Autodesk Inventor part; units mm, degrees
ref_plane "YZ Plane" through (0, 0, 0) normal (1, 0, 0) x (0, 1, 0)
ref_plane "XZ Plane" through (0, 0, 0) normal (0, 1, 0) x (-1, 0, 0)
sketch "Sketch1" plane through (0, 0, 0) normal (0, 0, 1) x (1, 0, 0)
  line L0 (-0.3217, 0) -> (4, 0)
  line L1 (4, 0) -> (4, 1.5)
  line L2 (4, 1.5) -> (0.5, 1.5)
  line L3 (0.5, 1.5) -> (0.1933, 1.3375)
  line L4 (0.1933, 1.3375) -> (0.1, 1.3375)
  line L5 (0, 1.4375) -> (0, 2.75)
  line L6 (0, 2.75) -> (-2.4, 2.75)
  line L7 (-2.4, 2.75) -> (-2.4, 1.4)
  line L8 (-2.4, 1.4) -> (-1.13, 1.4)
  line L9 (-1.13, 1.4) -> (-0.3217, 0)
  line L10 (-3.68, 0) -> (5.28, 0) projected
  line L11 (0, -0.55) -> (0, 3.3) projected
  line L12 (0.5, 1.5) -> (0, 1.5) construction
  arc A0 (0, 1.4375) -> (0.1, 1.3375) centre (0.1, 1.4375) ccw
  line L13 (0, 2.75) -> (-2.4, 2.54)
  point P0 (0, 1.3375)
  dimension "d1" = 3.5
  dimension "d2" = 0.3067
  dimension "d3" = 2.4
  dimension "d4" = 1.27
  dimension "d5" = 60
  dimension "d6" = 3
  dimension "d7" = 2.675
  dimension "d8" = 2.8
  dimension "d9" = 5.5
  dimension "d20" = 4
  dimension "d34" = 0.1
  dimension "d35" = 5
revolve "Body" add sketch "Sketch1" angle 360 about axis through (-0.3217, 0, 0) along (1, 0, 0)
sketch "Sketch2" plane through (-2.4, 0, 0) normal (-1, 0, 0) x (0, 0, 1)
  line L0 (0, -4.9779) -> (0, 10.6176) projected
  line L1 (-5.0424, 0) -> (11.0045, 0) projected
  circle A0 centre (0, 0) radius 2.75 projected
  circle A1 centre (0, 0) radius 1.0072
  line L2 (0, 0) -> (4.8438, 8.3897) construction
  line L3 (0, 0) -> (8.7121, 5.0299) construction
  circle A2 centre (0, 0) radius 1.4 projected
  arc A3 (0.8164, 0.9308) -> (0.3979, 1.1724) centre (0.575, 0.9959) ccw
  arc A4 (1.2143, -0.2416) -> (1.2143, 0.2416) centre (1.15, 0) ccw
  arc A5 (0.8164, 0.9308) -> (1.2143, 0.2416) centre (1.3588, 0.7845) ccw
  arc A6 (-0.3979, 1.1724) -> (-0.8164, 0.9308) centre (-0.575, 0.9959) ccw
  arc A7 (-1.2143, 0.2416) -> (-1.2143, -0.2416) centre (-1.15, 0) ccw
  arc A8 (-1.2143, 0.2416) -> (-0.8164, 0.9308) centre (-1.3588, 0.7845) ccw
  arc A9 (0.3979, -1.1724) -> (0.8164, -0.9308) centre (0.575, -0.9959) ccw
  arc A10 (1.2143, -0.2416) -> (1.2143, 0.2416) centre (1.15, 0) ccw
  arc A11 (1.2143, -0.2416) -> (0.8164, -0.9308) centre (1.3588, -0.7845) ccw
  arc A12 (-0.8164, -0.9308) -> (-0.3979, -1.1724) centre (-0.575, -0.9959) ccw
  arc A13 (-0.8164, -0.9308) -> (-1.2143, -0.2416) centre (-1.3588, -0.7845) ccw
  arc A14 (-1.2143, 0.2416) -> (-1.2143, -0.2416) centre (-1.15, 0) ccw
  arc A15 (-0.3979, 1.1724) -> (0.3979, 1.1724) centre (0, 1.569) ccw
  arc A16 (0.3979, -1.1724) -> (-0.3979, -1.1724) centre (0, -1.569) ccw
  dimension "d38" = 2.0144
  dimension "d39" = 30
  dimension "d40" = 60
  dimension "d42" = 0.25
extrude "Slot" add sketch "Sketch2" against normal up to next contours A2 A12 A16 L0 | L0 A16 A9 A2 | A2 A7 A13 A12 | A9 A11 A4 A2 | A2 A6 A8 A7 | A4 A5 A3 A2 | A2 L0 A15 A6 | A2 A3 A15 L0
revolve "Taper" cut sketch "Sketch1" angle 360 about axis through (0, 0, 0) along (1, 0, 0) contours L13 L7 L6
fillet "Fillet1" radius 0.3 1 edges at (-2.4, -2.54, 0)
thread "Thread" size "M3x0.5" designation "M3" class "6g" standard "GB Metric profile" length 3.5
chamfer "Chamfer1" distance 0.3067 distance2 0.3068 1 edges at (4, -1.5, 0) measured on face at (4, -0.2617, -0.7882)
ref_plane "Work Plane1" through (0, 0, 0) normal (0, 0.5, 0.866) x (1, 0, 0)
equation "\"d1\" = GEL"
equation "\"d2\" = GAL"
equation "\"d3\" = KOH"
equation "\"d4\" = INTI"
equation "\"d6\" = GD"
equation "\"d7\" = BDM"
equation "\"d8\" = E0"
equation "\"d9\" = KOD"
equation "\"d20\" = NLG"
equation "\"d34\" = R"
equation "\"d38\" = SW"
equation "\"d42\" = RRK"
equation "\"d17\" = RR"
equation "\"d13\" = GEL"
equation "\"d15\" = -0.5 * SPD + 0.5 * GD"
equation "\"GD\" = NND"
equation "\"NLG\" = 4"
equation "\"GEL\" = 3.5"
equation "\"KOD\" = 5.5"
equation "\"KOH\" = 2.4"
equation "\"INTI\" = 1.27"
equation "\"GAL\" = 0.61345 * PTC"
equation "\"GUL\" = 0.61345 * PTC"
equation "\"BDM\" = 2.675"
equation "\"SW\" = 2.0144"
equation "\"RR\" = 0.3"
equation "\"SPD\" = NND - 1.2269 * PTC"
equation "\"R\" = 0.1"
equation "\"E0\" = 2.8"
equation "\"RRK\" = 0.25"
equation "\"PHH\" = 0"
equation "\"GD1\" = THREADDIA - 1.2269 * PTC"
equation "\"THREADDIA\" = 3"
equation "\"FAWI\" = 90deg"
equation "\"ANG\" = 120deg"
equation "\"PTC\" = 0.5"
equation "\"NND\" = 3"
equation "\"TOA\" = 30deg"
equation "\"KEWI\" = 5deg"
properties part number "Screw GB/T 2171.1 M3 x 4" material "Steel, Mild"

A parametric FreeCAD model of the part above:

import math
import FreeCAD as App
import Part
import Sketcher

V = App.Vector
Q = App.Units.Quantity


def edges_at(feature, points):
    """Names of the edges that pass closest to the given points."""
    edges = feature.Shape.Edges
    near = lambda p: min(range(len(edges)), key=lambda i: edges[i].distToShape(Part.Vertex(*p))[0])
    return sorted({f"Edge{near(p) + 1}" for p in points})


def add_polygon(sketch, points):
    """Adds a closed chain of lines whose ends are joined by coincident constraints."""
    first, n = sketch.GeometryCount, len(points)
    for a, b in zip(points, points[1:] + points[:1]):
        sketch.addGeometry(Part.LineSegment(App.Vector(*a, 0), App.Vector(*b, 0)), False)
    for i in range(n):
        sketch.addConstraint(Sketcher.Constraint("Coincident", first + i, 2, first + (i + 1) % n, 1))

doc = App.newDocument("Part")
body = doc.addObject("PartDesign::Body", "Body")

# Sketch on XY plane
sketch1 = body.newObject("Sketcher::SketchObject", "Sketch")
sketch1.AttachmentSupport = (doc.getObject("XY_Plane"), [""])
sketch1.MapMode = "FlatFace"
sketch1.addGeometry(Part.LineSegment(V(-1.13, 1.4, 0), V(-0.3217, 0, 0)), False)
sketch1.addGeometry(Part.LineSegment(V(-0.3217, 0, 0), V(4, 0, 0)), False)
sketch1.addGeometry(Part.LineSegment(V(4, 0, 0), V(4, 1.5, 0)), False)
sketch1.addGeometry(Part.LineSegment(V(4, 1.5, 0), V(0.5, 1.5, 0)), False)
sketch1.addGeometry(Part.LineSegment(V(0.5, 1.5, 0), V(0.1933, 1.3375, 0)), False)
sketch1.addGeometry(Part.LineSegment(V(0.1933, 1.3375, 0), V(0.1, 1.3375, 0)), False)
sketch1.addGeometry(Part.ArcOfCircle(Part.Circle(V(0.1, 1.4375, 0), V(0, 0, 1), 0.1), math.radians(180), math.radians(270)), False)
sketch1.addGeometry(Part.LineSegment(V(0, 1.4375, 0), V(0, 2.75, 0)), False)
sketch1.addGeometry(Part.LineSegment(V(0, 2.75, 0), V(-2.4, 2.75, 0)), False)
sketch1.addGeometry(Part.LineSegment(V(-2.4, 2.75, 0), V(-2.4, 1.4, 0)), False)
sketch1.addGeometry(Part.LineSegment(V(-2.4, 1.4, 0), V(-1.13, 1.4, 0)), False)
sketch1.addConstraint(Sketcher.Constraint("Coincident", 0, 2, 1, 1))
sketch1.addConstraint(Sketcher.Constraint("Coincident", 1, 2, 2, 1))
sketch1.addConstraint(Sketcher.Constraint("Coincident", 2, 2, 3, 1))
sketch1.addConstraint(Sketcher.Constraint("Coincident", 3, 2, 4, 1))
sketch1.addConstraint(Sketcher.Constraint("Coincident", 4, 2, 5, 1))
sketch1.addConstraint(Sketcher.Constraint("Tangent", 5, 2, 6, 2))
sketch1.addConstraint(Sketcher.Constraint("Tangent", 6, 1, 7, 1))
sketch1.addConstraint(Sketcher.Constraint("Coincident", 7, 2, 8, 1))
sketch1.addConstraint(Sketcher.Constraint("Coincident", 8, 2, 9, 1))
sketch1.addConstraint(Sketcher.Constraint("Coincident", 9, 2, 10, 1))
sketch1.addConstraint(Sketcher.Constraint("Coincident", 10, 2, 0, 1))
sketch1.addConstraint(Sketcher.Constraint("Horizontal", 1))
sketch1.addConstraint(Sketcher.Constraint("Vertical", 2))
sketch1.addConstraint(Sketcher.Constraint("Horizontal", 3))
sketch1.addConstraint(Sketcher.Constraint("Horizontal", 5))
sketch1.addConstraint(Sketcher.Constraint("Vertical", 7))
sketch1.addConstraint(Sketcher.Constraint("Horizontal", 8))
sketch1.addConstraint(Sketcher.Constraint("Vertical", 9))
sketch1.addConstraint(Sketcher.Constraint("Horizontal", 10))
sketch1.addConstraint(Sketcher.Constraint("PointOnObject", 0, 2, -1))
sketch1.addConstraint(Sketcher.Constraint("PointOnObject", 6, 1, -2))
sketch1.addConstraint(Sketcher.Constraint("Radius", 6, 0.1))
sketch1.addConstraint(Sketcher.Constraint("Angle", 0, Q("-59.9997 deg")))
sketch1.addConstraint(Sketcher.Constraint("DistanceX", 3, 2, 3, 1, 3.5))
sketch1.addConstraint(Sketcher.Constraint("DistanceX", 8, 2, 8, 1, 2.4))
sketch1.addConstraint(Sketcher.Constraint("DistanceX", -1, 1, 1, 2, 4.0))
sketch1.addConstraint(Sketcher.Constraint("DistanceX", 10, 1, 10, 2, 1.27))
sketch1.addConstraint(Sketcher.Constraint("DistanceY", 2, 1, 2, 2, 1.5))
sketch1.addConstraint(Sketcher.Constraint("DistanceY", 9, 2, 9, 1, 1.35))
sketch1.addConstraint(Sketcher.Constraint("DistanceY", -1, 1, 9, 2, 1.4))
sketch1.addConstraint(Sketcher.Constraint("DistanceX", 4, 2, 3, 2, 0.3067))
sketch1.addConstraint(Sketcher.Constraint("Distance", 4, 0.347))
revolution = body.newObject("PartDesign::Revolution", "Revolution")
revolution.Profile = sketch1
revolution.ReferenceAxis = (sketch1, ["H_Axis"])
revolution.Angle = 360

# Sketch on YZ plane
sketch2 = body.newObject("Sketcher::SketchObject", "Sketch001")
sketch2.AttachmentSupport = (doc.getObject("YZ_Plane"), [""])
sketch2.MapMode = "FlatFace"
sketch2.AttachmentOffset = App.Placement(V(0, 0, -2.4), App.Rotation())
sketch2.addGeometry(Part.ArcOfCircle(Part.Circle(V(0, 0, 0), V(0, 0, 1), 1.4), math.radians(149.999514), math.radians(210.000486)), False)
sketch2.addGeometry(Part.ArcOfCircle(Part.Circle(V(-0.9959, 0.575, 0), V(0, 0, 1), 0.250033), math.radians(150.000626), math.radians(225.097221)), False)
sketch2.addGeometry(Part.ArcOfCircle(Part.Circle(V(-1.569, 0, 0), V(0, 0, 1), 0.561797), math.radians(-45.09375), math.radians(45.09375)), False)
sketch2.addGeometry(Part.ArcOfCircle(Part.Circle(V(-0.9959, -0.575, 0), V(0, 0, 1), 0.250024), math.radians(134.902779), math.radians(209.999373)), False)
sketch2.addGeometry(Part.ArcOfCircle(Part.Circle(V(0, 0, 0), V(0, 0, 1), 1.4), math.radians(-149.999514), math.radians(-90)), False)
sketch2.addGeometry(Part.ArcOfCircle(Part.Circle(V(-0.9959, -0.575, 0), V(0, 0, 1), 0.250024), math.radians(-150.000627), math.radians(-74.907682)), False)
sketch2.addGeometry(Part.ArcOfCircle(Part.Circle(V(-0.7845, -1.3588, 0), V(0, 0, 1), 0.561784), math.radians(14.904482), math.radians(105.095003)), False)
sketch2.addGeometry(Part.ArcOfCircle(Part.Circle(V(0, -1.15, 0), V(0, 0, 1), 0.25001), math.radians(-165.096631), math.radians(-90)), False)
sketch2.addGeometry(Part.ArcOfCircle(Part.Circle(V(-0.9959, 0.575, 0), V(0, 0, 1), 0.250033), math.radians(74.907682), math.radians(150.000626)), False)
sketch2.addGeometry(Part.ArcOfCircle(Part.Circle(V(0, 0, 0), V(0, 0, 1), 1.4), math.radians(90), math.radians(149.999514)), False)
sketch2.addGeometry(Part.ArcOfCircle(Part.Circle(V(0, 1.15, 0), V(0, 0, 1), 0.25001), math.radians(90), math.radians(165.096631)), False)
sketch2.addGeometry(Part.ArcOfCircle(Part.Circle(V(-0.7845, 1.3588, 0), V(0, 0, 1), 0.561801), math.radians(-105.095003), math.radians(-14.904482)), False)
sketch2.addGeometry(Part.ArcOfCircle(Part.Circle(V(0, 0, 0), V(0, 0, 1), 1.4), math.radians(-90), math.radians(-30.000486)), False)
sketch2.addGeometry(Part.ArcOfCircle(Part.Circle(V(0, -1.15, 0), V(0, 0, 1), 0.25001), math.radians(-90), math.radians(-14.903369)), False)
sketch2.addGeometry(Part.ArcOfCircle(Part.Circle(V(0.7845, -1.3588, 0), V(0, 0, 1), 0.561801), math.radians(74.904997), math.radians(165.095518)), False)
sketch2.addGeometry(Part.ArcOfCircle(Part.Circle(V(0.9959, -0.575, 0), V(0, 0, 1), 0.250033), math.radians(-105.092318), math.radians(-29.999374)), False)
sketch2.addGeometry(Part.ArcOfCircle(Part.Circle(V(0, 1.15, 0), V(0, 0, 1), 0.25001), math.radians(14.903369), math.radians(90)), False)
sketch2.addGeometry(Part.ArcOfCircle(Part.Circle(V(0, 0, 0), V(0, 0, 1), 1.4), math.radians(30.000486), math.radians(90)), False)
sketch2.addGeometry(Part.ArcOfCircle(Part.Circle(V(0.9959, 0.575, 0), V(0, 0, 1), 0.250024), math.radians(29.999375), math.radians(105.092318)), False)
sketch2.addGeometry(Part.ArcOfCircle(Part.Circle(V(0.7845, 1.3588, 0), V(0, 0, 1), 0.561784), math.radians(-165.095518), math.radians(-74.904997)), False)
sketch2.addGeometry(Part.ArcOfCircle(Part.Circle(V(0.9959, -0.575, 0), V(0, 0, 1), 0.250033), math.radians(-29.999374), math.radians(45.097221)), False)
sketch2.addGeometry(Part.ArcOfCircle(Part.Circle(V(1.569, 0, 0), V(0, 0, 1), 0.561797), math.radians(134.90625), math.radians(225.09375)), False)
sketch2.addGeometry(Part.ArcOfCircle(Part.Circle(V(0.9959, 0.575, 0), V(0, 0, 1), 0.250024), math.radians(-45.097221), math.radians(29.999375)), False)
sketch2.addGeometry(Part.ArcOfCircle(Part.Circle(V(0, 0, 0), V(0, 0, 1), 1.4), math.radians(-30.000486), math.radians(30.000486)), False)
sketch2.addConstraint(Sketcher.Constraint("Tangent", 0, 1, 1, 1))
sketch2.addConstraint(Sketcher.Constraint("Tangent", 1, 2, 2, 2))
sketch2.addConstraint(Sketcher.Constraint("Tangent", 2, 1, 3, 1))
sketch2.addConstraint(Sketcher.Constraint("Tangent", 3, 2, 0, 2))
sketch2.addConstraint(Sketcher.Constraint("Tangent", 4, 1, 5, 1))
sketch2.addConstraint(Sketcher.Constraint("Tangent", 5, 2, 6, 2))
sketch2.addConstraint(Sketcher.Constraint("Tangent", 6, 1, 7, 1))
sketch2.addConstraint(Sketcher.Constraint("Tangent", 7, 2, 4, 2))
sketch2.addConstraint(Sketcher.Constraint("Tangent", 8, 2, 9, 2))
sketch2.addConstraint(Sketcher.Constraint("Tangent", 9, 1, 10, 1))
sketch2.addConstraint(Sketcher.Constraint("Tangent", 10, 2, 11, 2))
sketch2.addConstraint(Sketcher.Constraint("Tangent", 11, 1, 8, 1))
sketch2.addConstraint(Sketcher.Constraint("Tangent", 12, 1, 13, 1))
sketch2.addConstraint(Sketcher.Constraint("Tangent", 13, 2, 14, 2))
sketch2.addConstraint(Sketcher.Constraint("Tangent", 14, 1, 15, 1))
sketch2.addConstraint(Sketcher.Constraint("Tangent", 15, 2, 12, 2))
sketch2.addConstraint(Sketcher.Constraint("Tangent", 16, 2, 17, 2))
sketch2.addConstraint(Sketcher.Constraint("Tangent", 17, 1, 18, 1))
sketch2.addConstraint(Sketcher.Constraint("Tangent", 18, 2, 19, 2))
sketch2.addConstraint(Sketcher.Constraint("Tangent", 19, 1, 16, 1))
sketch2.addConstraint(Sketcher.Constraint("Tangent", 20, 2, 21, 2))
sketch2.addConstraint(Sketcher.Constraint("Tangent", 21, 1, 22, 1))
sketch2.addConstraint(Sketcher.Constraint("Tangent", 22, 2, 23, 2))
sketch2.addConstraint(Sketcher.Constraint("Tangent", 23, 1, 20, 1))
sketch2.addConstraint(Sketcher.Constraint("Coincident", 0, 3, -1, 1))
sketch2.addConstraint(Sketcher.Constraint("Coincident", 4, 3, -1, 1))
sketch2.addConstraint(Sketcher.Constraint("Coincident", 9, 3, -1, 1))
sketch2.addConstraint(Sketcher.Constraint("Coincident", 12, 3, -1, 1))
sketch2.addConstraint(Sketcher.Constraint("Coincident", 17, 3, -1, 1))
sketch2.addConstraint(Sketcher.Constraint("Coincident", 23, 3, -1, 1))
sketch2.addConstraint(Sketcher.Constraint("Coincident", 5, 3, 3, 3))
sketch2.addConstraint(Sketcher.Constraint("Coincident", 8, 3, 1, 3))
sketch2.addConstraint(Sketcher.Constraint("Coincident", 13, 3, 7, 3))
sketch2.addConstraint(Sketcher.Constraint("Coincident", 16, 3, 10, 3))
sketch2.addConstraint(Sketcher.Constraint("Coincident", 20, 3, 15, 3))
sketch2.addConstraint(Sketcher.Constraint("Coincident", 22, 3, 18, 3))
sketch2.addConstraint(Sketcher.Constraint("Equal", 1, 3))
sketch2.addConstraint(Sketcher.Constraint("Equal", 0, 4))
sketch2.addConstraint(Sketcher.Constraint("Equal", 2, 6))
sketch2.addConstraint(Sketcher.Constraint("Equal", 5, 7))
sketch2.addConstraint(Sketcher.Constraint("Equal", 7, 8))
sketch2.addConstraint(Sketcher.Constraint("Equal", 8, 10))
sketch2.addConstraint(Sketcher.Constraint("Equal", 6, 11))
sketch2.addConstraint(Sketcher.Constraint("Equal", 9, 12))
sketch2.addConstraint(Sketcher.Constraint("Equal", 11, 14))
sketch2.addConstraint(Sketcher.Constraint("Equal", 13, 15))
sketch2.addConstraint(Sketcher.Constraint("Equal", 15, 16))
sketch2.addConstraint(Sketcher.Constraint("Equal", 16, 18))
sketch2.addConstraint(Sketcher.Constraint("Equal", 14, 19))
sketch2.addConstraint(Sketcher.Constraint("Equal", 18, 20))
sketch2.addConstraint(Sketcher.Constraint("Equal", 19, 21))
sketch2.addConstraint(Sketcher.Constraint("Symmetric", 11, 3, 14, 3, -1, 1))
sketch2.addConstraint(Sketcher.Constraint("Symmetric", 6, 3, 14, 3, -2))
sketch2.addConstraint(Sketcher.Constraint("PointOnObject", 21, 3, -1))
sketch2.addConstraint(Sketcher.Constraint("Radius", 1, 0.25))
sketch2.addConstraint(Sketcher.Constraint("Radius", 0, 1.4))
sketch2.addConstraint(Sketcher.Constraint("DistanceY", -1, 1, 0, 1, 0.7))
sketch2.addConstraint(Sketcher.Constraint("Radius", 2, 0.5618))
pad1 = body.newObject("PartDesign::Pad", "Pad")
pad1.Profile = sketch2
pad1.Type = "UpToFirst"

# Sketch on XY plane
sketch3 = body.newObject("Sketcher::SketchObject", "Sketch002")
sketch3.AttachmentSupport = (doc.getObject("XY_Plane"), [""])
sketch3.MapMode = "FlatFace"
add_polygon(sketch3, [(-2.4, 2.54), (0, 2.75), (-2.4, 2.75)])  # lines 0-2
sketch3.addConstraint(Sketcher.Constraint("Horizontal", 1))
sketch3.addConstraint(Sketcher.Constraint("Vertical", 2))
sketch3.addConstraint(Sketcher.Constraint("PointOnObject", 0, 2, -2))
sketch3.addConstraint(Sketcher.Constraint("DistanceX", 1, 2, 1, 1, 2.4))
sketch3.addConstraint(Sketcher.Constraint("Angle", 0, Q("5.0006 deg")))
sketch3.addConstraint(Sketcher.Constraint("DistanceY", -1, 1, 0, 2, 2.75))
groove = body.newObject("PartDesign::Groove", "Groove")
groove.Profile = sketch3
groove.ReferenceAxis = (sketch3, ["H_Axis"])
groove.Angle = 360
doc.recompute()

fillet = body.newObject("PartDesign::Fillet", "Fillet")
fillet.Base = (groove, edges_at(groove, [(-2.4, -2.54, 0)]))
fillet.Radius = 0.3
doc.recompute()

chamfer = body.newObject("PartDesign::Chamfer", "Chamfer")
chamfer.Base = (fillet, edges_at(fillet, [(4, -1.5, 0)]))
chamfer.ChamferType = "Two distances"
chamfer.Size = 0.3067
chamfer.Size2 = 0.3068

doc.recompute()
